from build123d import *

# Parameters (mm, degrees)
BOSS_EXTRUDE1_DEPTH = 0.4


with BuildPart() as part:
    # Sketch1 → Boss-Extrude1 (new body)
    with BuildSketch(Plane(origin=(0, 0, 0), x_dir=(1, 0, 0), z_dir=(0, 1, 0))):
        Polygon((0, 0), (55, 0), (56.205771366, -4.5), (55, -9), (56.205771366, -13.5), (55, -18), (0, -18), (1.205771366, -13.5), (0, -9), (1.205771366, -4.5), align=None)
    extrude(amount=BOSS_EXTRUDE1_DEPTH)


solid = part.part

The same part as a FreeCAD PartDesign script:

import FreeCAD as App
import Part
import Sketcher

V = App.Vector
Q = App.Units.Quantity

doc = App.newDocument("Part")
body = doc.addObject("PartDesign::Body", "Body")

# Sketch on XZ plane
sketch1 = body.newObject("Sketcher::SketchObject", "Sketch")
sketch1.AttachmentSupport = (doc.getObject("XZ_Plane"), [""])
sketch1.MapMode = "FlatFace"
sketch1.addGeometry([
    Part.LineSegment(V(55, 0, 0), V(0, 0, 0)),  # 0
    Part.LineSegment(V(0, 0, 0), V(1.205771, 4.5, 0)),  # 1
    Part.LineSegment(V(1.205771, 4.5, 0), V(0, 9, 0)),  # 2
    Part.LineSegment(V(0, 9, 0), V(1.205771, 13.5, 0)),  # 3
    Part.LineSegment(V(1.205771, 13.5, 0), V(0, 18, 0)),  # 4
    Part.LineSegment(V(0, 18, 0), V(55, 18, 0)),  # 5
    Part.LineSegment(V(55, 18, 0), V(56.205771, 13.5, 0)),  # 6
    Part.LineSegment(V(56.205771, 13.5, 0), V(55, 9, 0)),  # 7
    Part.LineSegment(V(55, 9, 0), V(56.205771, 4.5, 0)),  # 8
    Part.LineSegment(V(56.205771, 4.5, 0), V(55, 0, 0)),  # 9
], False)
sketch1.addConstraint([
    Sketcher.Constraint("Coincident", 0, 2, 1, 1),
    Sketcher.Constraint("Coincident", 1, 2, 2, 1),
    Sketcher.Constraint("Coincident", 2, 2, 3, 1),
    Sketcher.Constraint("Coincident", 3, 2, 4, 1),
    Sketcher.Constraint("Coincident", 4, 2, 5, 1),
    Sketcher.Constraint("Coincident", 5, 2, 6, 1),
    Sketcher.Constraint("Coincident", 6, 2, 7, 1),
    Sketcher.Constraint("Coincident", 7, 2, 8, 1),
    Sketcher.Constraint("Coincident", 8, 2, 9, 1),
    Sketcher.Constraint("Coincident", 9, 2, 0, 1),
    Sketcher.Constraint("Horizontal", 0),
    Sketcher.Constraint("Horizontal", 5),
    Sketcher.Constraint("Coincident", 0, 2, -1, 1),
    Sketcher.Constraint("PointOnObject", 2, 2, -2),
    Sketcher.Constraint("PointOnObject", 4, 2, -2),
    Sketcher.Constraint("Parallel", 1, 3),
    Sketcher.Constraint("Parallel", 2, 4),
    Sketcher.Constraint("Parallel", 4, 6),
    Sketcher.Constraint("Parallel", 3, 7),
    Sketcher.Constraint("Parallel", 6, 8),
    Sketcher.Constraint("Parallel", 7, 9),
    Sketcher.Constraint("Horizontal", 3, 2, 6, 2),
    Sketcher.Constraint("Horizontal", 2, 2, 7, 2),
    Sketcher.Constraint("Horizontal", 1, 2, 8, 2),
    Sketcher.Constraint("Vertical", 1, 2, 3, 2),
    Sketcher.Constraint("Equal", 1, 2),
    Sketcher.Constraint("DistanceX", 0, 2, 0, 1, 55.0),
    Sketcher.Constraint("Angle", 1, Q("75 deg")),
    Sketcher.Constraint("DistanceY", -1, 1, 2, 2, 9.0),
])
pad1 = body.newObject("PartDesign::Pad", "Pad")
pad1.Profile = sketch1
pad1.Length = 0.4
pad1.Reversed = True

doc.recompute()
